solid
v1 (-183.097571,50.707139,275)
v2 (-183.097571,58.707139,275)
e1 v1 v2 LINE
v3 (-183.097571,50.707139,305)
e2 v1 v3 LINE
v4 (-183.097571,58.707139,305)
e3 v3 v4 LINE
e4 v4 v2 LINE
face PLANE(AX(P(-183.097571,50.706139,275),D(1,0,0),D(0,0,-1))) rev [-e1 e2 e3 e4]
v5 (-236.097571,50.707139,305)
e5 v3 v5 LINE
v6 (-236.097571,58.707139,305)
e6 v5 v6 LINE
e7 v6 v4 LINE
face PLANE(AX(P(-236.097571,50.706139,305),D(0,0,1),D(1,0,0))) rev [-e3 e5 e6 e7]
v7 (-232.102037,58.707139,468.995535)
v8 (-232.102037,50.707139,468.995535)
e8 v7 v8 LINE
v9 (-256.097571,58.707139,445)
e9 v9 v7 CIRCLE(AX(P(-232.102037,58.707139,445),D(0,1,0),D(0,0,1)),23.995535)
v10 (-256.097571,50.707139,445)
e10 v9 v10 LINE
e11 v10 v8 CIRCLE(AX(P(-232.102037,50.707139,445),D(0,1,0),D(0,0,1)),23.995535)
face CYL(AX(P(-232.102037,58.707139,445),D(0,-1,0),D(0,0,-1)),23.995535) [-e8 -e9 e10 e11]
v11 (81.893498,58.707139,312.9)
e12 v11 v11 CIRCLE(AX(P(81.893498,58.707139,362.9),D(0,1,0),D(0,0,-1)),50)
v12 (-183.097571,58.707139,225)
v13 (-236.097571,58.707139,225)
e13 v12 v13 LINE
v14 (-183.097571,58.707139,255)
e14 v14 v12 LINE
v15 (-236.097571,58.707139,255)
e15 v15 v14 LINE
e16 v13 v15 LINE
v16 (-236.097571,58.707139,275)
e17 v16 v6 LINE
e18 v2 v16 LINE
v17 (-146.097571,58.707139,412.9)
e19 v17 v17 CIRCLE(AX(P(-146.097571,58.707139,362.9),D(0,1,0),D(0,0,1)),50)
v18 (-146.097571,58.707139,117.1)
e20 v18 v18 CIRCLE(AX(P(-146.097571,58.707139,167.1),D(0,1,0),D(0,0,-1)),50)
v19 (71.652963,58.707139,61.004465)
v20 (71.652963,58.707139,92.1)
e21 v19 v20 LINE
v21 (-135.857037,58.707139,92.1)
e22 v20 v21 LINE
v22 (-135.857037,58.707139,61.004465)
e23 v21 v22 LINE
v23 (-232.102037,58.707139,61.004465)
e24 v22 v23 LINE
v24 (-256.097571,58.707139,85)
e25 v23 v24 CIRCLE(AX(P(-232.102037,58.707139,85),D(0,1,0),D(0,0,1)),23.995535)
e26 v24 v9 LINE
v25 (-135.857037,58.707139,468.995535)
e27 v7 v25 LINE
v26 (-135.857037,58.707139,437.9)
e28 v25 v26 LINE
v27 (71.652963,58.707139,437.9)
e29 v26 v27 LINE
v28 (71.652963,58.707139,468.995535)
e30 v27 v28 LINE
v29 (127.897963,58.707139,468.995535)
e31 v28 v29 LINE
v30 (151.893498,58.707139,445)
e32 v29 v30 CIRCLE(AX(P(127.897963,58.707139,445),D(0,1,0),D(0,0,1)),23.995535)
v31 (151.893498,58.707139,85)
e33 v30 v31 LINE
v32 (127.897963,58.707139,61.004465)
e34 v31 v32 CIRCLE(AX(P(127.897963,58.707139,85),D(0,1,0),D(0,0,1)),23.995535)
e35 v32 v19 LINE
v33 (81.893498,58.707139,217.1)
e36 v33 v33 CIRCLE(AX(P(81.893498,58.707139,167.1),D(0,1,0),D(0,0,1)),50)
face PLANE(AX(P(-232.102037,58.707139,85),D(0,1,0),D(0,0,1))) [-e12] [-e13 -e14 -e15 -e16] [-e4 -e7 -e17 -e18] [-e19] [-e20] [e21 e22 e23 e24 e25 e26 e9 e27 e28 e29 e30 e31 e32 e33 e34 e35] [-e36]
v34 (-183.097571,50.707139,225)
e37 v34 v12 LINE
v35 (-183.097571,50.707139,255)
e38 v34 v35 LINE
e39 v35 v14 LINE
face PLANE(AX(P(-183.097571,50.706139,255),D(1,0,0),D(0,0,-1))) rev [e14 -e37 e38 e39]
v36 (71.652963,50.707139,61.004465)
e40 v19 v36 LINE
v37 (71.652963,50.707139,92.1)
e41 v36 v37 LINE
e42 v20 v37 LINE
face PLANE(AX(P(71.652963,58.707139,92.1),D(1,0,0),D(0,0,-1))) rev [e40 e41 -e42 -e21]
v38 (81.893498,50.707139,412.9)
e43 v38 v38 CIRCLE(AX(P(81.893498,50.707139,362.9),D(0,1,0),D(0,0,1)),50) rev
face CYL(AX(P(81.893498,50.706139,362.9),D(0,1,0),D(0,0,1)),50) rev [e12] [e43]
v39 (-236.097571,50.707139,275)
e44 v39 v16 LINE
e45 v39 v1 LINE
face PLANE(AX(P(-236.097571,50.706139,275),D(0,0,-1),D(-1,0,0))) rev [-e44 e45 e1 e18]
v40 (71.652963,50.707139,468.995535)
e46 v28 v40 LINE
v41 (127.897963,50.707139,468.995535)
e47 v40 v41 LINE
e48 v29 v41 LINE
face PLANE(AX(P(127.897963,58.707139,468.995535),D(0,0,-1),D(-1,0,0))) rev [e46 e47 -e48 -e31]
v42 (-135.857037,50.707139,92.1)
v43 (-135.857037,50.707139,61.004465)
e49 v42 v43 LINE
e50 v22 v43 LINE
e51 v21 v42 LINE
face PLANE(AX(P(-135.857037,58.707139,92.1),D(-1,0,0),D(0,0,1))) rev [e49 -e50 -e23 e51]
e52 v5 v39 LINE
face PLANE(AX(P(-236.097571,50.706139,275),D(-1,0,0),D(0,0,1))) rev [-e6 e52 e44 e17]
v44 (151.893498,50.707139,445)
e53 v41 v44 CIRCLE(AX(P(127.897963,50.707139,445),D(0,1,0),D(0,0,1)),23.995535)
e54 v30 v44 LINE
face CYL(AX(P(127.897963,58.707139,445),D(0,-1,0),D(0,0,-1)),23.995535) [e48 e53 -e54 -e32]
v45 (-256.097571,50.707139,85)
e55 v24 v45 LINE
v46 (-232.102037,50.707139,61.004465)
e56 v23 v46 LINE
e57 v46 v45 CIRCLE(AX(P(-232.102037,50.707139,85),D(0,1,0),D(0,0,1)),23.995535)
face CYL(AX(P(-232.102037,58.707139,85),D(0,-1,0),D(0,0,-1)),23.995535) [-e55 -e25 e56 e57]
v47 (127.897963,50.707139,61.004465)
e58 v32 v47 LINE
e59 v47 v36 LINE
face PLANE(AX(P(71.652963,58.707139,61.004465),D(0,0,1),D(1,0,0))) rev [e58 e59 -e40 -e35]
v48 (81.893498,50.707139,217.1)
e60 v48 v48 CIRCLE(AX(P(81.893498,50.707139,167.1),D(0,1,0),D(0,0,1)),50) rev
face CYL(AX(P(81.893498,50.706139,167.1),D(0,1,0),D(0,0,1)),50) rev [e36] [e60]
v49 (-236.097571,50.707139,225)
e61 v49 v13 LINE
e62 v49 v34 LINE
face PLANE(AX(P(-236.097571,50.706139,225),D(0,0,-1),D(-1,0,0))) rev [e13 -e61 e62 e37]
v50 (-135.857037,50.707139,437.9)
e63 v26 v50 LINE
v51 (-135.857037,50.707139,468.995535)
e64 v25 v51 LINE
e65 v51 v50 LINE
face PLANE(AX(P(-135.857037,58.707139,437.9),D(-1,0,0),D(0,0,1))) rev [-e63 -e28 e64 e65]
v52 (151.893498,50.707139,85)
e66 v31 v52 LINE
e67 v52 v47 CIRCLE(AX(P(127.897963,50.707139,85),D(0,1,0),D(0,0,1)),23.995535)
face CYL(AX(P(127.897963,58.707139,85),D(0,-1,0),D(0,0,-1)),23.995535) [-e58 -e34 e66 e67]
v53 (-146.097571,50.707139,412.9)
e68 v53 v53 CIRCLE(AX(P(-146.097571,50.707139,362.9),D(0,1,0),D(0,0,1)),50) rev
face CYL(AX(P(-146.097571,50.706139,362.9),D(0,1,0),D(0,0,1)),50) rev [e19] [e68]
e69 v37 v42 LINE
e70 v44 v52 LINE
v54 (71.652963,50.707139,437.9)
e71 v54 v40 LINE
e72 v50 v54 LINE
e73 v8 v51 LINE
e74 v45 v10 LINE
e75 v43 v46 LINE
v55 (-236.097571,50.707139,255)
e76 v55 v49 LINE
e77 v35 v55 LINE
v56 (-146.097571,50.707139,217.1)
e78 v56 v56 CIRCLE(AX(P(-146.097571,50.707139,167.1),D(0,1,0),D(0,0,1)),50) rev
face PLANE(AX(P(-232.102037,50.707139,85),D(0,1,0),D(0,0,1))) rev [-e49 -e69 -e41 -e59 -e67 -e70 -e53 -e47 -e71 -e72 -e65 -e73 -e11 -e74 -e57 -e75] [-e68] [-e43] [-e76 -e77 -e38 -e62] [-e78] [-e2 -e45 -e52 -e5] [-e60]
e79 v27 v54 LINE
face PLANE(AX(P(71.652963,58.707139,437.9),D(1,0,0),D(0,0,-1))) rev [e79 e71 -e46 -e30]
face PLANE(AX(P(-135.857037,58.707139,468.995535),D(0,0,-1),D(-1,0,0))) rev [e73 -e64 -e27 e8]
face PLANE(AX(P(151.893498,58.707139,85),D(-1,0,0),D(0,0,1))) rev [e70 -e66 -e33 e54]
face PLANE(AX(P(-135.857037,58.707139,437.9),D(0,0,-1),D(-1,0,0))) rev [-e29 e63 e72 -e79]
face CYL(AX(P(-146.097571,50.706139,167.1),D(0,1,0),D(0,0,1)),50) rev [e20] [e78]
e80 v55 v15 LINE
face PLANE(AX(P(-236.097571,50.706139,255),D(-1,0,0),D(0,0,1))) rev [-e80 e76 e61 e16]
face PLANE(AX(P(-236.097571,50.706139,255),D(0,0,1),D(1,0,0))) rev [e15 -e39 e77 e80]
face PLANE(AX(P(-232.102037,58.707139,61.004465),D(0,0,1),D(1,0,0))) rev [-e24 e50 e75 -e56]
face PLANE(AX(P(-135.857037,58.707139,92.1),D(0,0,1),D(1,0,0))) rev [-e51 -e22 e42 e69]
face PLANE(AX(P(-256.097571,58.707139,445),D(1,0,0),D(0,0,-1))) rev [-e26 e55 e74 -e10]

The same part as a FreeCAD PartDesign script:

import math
import FreeCAD as App
import Part
import Sketcher

doc = App.newDocument("Part")
body = doc.addObject("PartDesign::Body", "Body")

# Sketch on XZ plane
sketch1 = body.newObject("Sketcher::SketchObject", "Sketch")
sketch1.AttachmentSupport = (doc.getObject("XZ_Plane"), [""])
sketch1.MapMode = "FlatFace"
sketch1.AttachmentOffset = App.Placement(App.Vector(0, 0, -54.707139), App.Rotation())
sketch1.addGeometry(Part.LineSegment(App.Vector(72, 92, 0), App.Vector(-136, 92, 0)), False)
sketch1.addGeometry(Part.LineSegment(App.Vector(-136, 92, 0), App.Vector(-136, 61, 0)), False)
sketch1.addGeometry(Part.LineSegment(App.Vector(-136, 61, 0), App.Vector(-232, 61, 0)), False)
sketch1.addGeometry(Part.ArcOfCircle(Part.Circle(App.Vector(-232, 85, 0), App.Vector(0, 0, 1), 24), math.radians(180), math.radians(270)), False)
sketch1.addGeometry(Part.LineSegment(App.Vector(-256, 85, 0), App.Vector(-256, 445, 0)), False)
sketch1.addGeometry(Part.ArcOfCircle(Part.Circle(App.Vector(-232, 445, 0), App.Vector(0, 0, 1), 24), math.radians(90), math.radians(180)), False)
sketch1.addGeometry(Part.LineSegment(App.Vector(-232, 469, 0), App.Vector(-136, 469, 0)), False)
sketch1.addGeometry(Part.LineSegment(App.Vector(-136, 469, 0), App.Vector(-136, 438, 0)), False)
sketch1.addGeometry(Part.LineSegment(App.Vector(-136, 438, 0), App.Vector(72, 438, 0)), False)
sketch1.addGeometry(Part.LineSegment(App.Vector(72, 438, 0), App.Vector(72, 469, 0)), False)
sketch1.addGeometry(Part.LineSegment(App.Vector(72, 469, 0), App.Vector(128, 469, 0)), False)
sketch1.addGeometry(Part.ArcOfCircle(Part.Circle(App.Vector(128, 445, 0), App.Vector(0, 0, 1), 24), math.radians(0), math.radians(90)), False)
sketch1.addGeometry(Part.LineSegment(App.Vector(152, 445, 0), App.Vector(152, 85, 0)), False)
sketch1.addGeometry(Part.ArcOfCircle(Part.Circle(App.Vector(128, 85, 0), App.Vector(0, 0, 1), 24), math.radians(-90), math.radians(0)), False)
sketch1.addGeometry(Part.LineSegment(App.Vector(128, 61, 0), App.Vector(72, 61, 0)), False)
sketch1.addGeometry(Part.LineSegment(App.Vector(72, 61, 0), App.Vector(72, 92, 0)), False)
sketch1.addConstraint(Sketcher.Constraint("Coincident", 0, 2, 1, 1))
sketch1.addConstraint(Sketcher.Constraint("Coincident", 1, 2, 2, 1))
sketch1.addConstraint(Sketcher.Constraint("Tangent", 2, 2, 3, 2))
sketch1.addConstraint(Sketcher.Constraint("Tangent", 3, 1, 4, 1))
sketch1.addConstraint(Sketcher.Constraint("Tangent", 4, 2, 5, 2))
sketch1.addConstraint(Sketcher.Constraint("Tangent", 5, 1, 6, 1))
sketch1.addConstraint(Sketcher.Constraint("Coincident", 6, 2, 7, 1))
sketch1.addConstraint(Sketcher.Constraint("Coincident", 7, 2, 8, 1))
sketch1.addConstraint(Sketcher.Constraint("Coincident", 8, 2, 9, 1))
sketch1.addConstraint(Sketcher.Constraint("Coincident", 9, 2, 10, 1))
sketch1.addConstraint(Sketcher.Constraint("Tangent", 10, 2, 11, 2))
sketch1.addConstraint(Sketcher.Constraint("Tangent", 11, 1, 12, 1))
sketch1.addConstraint(Sketcher.Constraint("Tangent", 12, 2, 13, 2))
sketch1.addConstraint(Sketcher.Constraint("Tangent", 13, 1, 14, 1))
sketch1.addConstraint(Sketcher.Constraint("Coincident", 14, 2, 15, 1))
sketch1.addConstraint(Sketcher.Constraint("Coincident", 15, 2, 0, 1))
sketch1.addConstraint(Sketcher.Constraint("Horizontal", 0))
sketch1.addConstraint(Sketcher.Constraint("Vertical", 1))
sketch1.addConstraint(Sketcher.Constraint("Horizontal", 2))
sketch1.addConstraint(Sketcher.Constraint("Vertical", 4))
sketch1.addConstraint(Sketcher.Constraint("Horizontal", 6))
sketch1.addConstraint(Sketcher.Constraint("Vertical", 7))
sketch1.addConstraint(Sketcher.Constraint("Horizontal", 8))
sketch1.addConstraint(Sketcher.Constraint("Vertical", 9))
sketch1.addConstraint(Sketcher.Constraint("Horizontal", 10))
sketch1.addConstraint(Sketcher.Constraint("Vertical", 12))
sketch1.addConstraint(Sketcher.Constraint("Horizontal", 14))
sketch1.addConstraint(Sketcher.Constraint("Vertical", 15))
sketch1.addConstraint(Sketcher.Constraint("Equal", 3, 5))
sketch1.addConstraint(Sketcher.Constraint("Equal", 5, 11))
sketch1.addConstraint(Sketcher.Constraint("Equal", 11, 13))
sketch1.addConstraint(Sketcher.Constraint("Horizontal", 5, 3, 11, 3))
sketch1.addConstraint(Sketcher.Constraint("Horizontal", 3, 3, 13, 3))
sketch1.addConstraint(Sketcher.Constraint("Vertical", 1, 2, 6, 2))
sketch1.addConstraint(Sketcher.Constraint("Vertical", 9, 2, 14, 2))
sketch1.addConstraint(Sketcher.Constraint("Equal", 1, 7))
sketch1.addConstraint(Sketcher.Constraint("DistanceY", 4, 1, 4, 2, 360.0))
sketch1.addConstraint(Sketcher.Constraint("DistanceY", -1, 1, 3, 3, 85.0))
sketch1.addConstraint(Sketcher.Constraint("DistanceX", 5, 3, 11, 3, 360.0))
sketch1.addConstraint(Sketcher.Constraint("DistanceX", 0, 2, 0, 1, 207.51))
sketch1.addConstraint(Sketcher.Constraint("DistanceY", -1, 1, 0, 2, 92.1))
sketch1.addConstraint(Sketcher.Constraint("DistanceX", 2, 2, 2, 1, 96.245))
sketch1.addConstraint(Sketcher.Constraint("Radius", 3, 23.995535))
sketch1.addConstraint(Sketcher.Constraint("DistanceX", 3, 1, -1, 1, 256.097571))
pad1 = body.newObject("PartDesign::Pad", "Pad")
pad1.Profile = sketch1
pad1.Length = 8
pad1.Midplane = True

# Sketch on XZ plane
sketch2 = body.newObject("Sketcher::SketchObject", "Sketch001")
sketch2.AttachmentSupport = (doc.getObject("XZ_Plane"), [""])
sketch2.MapMode = "FlatFace"
sketch2.AttachmentOffset = App.Placement(App.Vector(0, 0, -58.707139), App.Rotation())
sketch2.addGeometry(Part.Circle(App.Vector(-146, 167, 0), App.Vector(0, 0, 1), 50), False)
sketch2.addConstraint(Sketcher.Constraint("Diameter", 0, 100.0))
sketch2.addConstraint(Sketcher.Constraint("DistanceY", -1, 1, 0, 3, 167.1))
sketch2.addConstraint(Sketcher.Constraint("DistanceX", 0, 3, -1, 1, 146.097571))
pocket1 = body.newObject("PartDesign::Pocket", "Pocket")
pocket1.Profile = sketch2
pocket1.Type = "UpToFirst"
pocket1.Reversed = True

# Sketch on XZ plane
sketch3 = body.newObject("Sketcher::SketchObject", "Sketch002")
sketch3.AttachmentSupport = (doc.getObject("XZ_Plane"), [""])
sketch3.MapMode = "FlatFace"
sketch3.AttachmentOffset = App.Placement(App.Vector(0, 0, -58.707139), App.Rotation())
sketch3.addGeometry(Part.Circle(App.Vector(82, 167, 0), App.Vector(0, 0, 1), 50), False)
sketch3.addConstraint(Sketcher.Constraint("Diameter", 0, 100.0))
sketch3.addConstraint(Sketcher.Constraint("DistanceY", -1, 1, 0, 3, 167.1))
sketch3.addConstraint(Sketcher.Constraint("DistanceX", -1, 1, 0, 3, 81.893498))
pocket2 = body.newObject("PartDesign::Pocket", "Pocket001")
pocket2.Profile = sketch3
pocket2.Type = "UpToFirst"
pocket2.Reversed = True

# Sketch on XZ plane
sketch4 = body.newObject("Sketcher::SketchObject", "Sketch003")
sketch4.AttachmentSupport = (doc.getObject("XZ_Plane"), [""])
sketch4.MapMode = "FlatFace"
sketch4.AttachmentOffset = App.Placement(App.Vector(0, 0, -58.707139), App.Rotation())
sketch4.addGeometry(Part.Circle(App.Vector(82, 363, 0), App.Vector(0, 0, 1), 50), False)
sketch4.addConstraint(Sketcher.Constraint("Diameter", 0, 100.0))
sketch4.addConstraint(Sketcher.Constraint("DistanceY", -1, 1, 0, 3, 362.9))
sketch4.addConstraint(Sketcher.Constraint("DistanceX", -1, 1, 0, 3, 81.893498))
pocket3 = body.newObject("PartDesign::Pocket", "Pocket002")
pocket3.Profile = sketch4
pocket3.Type = "UpToFirst"
pocket3.Reversed = True

# Sketch on XZ plane
sketch5 = body.newObject("Sketcher::SketchObject", "Sketch004")
sketch5.AttachmentSupport = (doc.getObject("XZ_Plane"), [""])
sketch5.MapMode = "FlatFace"
sketch5.AttachmentOffset = App.Placement(App.Vector(0, 0, -58.707139), App.Rotation())
sketch5.addGeometry(Part.Circle(App.Vector(-146, 363, 0), App.Vector(0, 0, 1), 50), False)
sketch5.addConstraint(Sketcher.Constraint("Diameter", 0, 100.0))
sketch5.addConstraint(Sketcher.Constraint("DistanceY", -1, 1, 0, 3, 362.9))
sketch5.addConstraint(Sketcher.Constraint("DistanceX", 0, 3, -1, 1, 146.097571))
pocket4 = body.newObject("PartDesign::Pocket", "Pocket003")
pocket4.Profile = sketch5
pocket4.Type = "UpToFirst"
pocket4.Reversed = True

# Sketch on XZ plane
sketch6 = body.newObject("Sketcher::SketchObject", "Sketch005")
sketch6.AttachmentSupport = (doc.getObject("XZ_Plane"), [""])
sketch6.MapMode = "FlatFace"
sketch6.AttachmentOffset = App.Placement(App.Vector(0, 0, -58.707139), App.Rotation())
sketch6.addGeometry(Part.LineSegment(App.Vector(-236, 275, 0), App.Vector(-236, 305, 0)), False)
sketch6.addGeometry(Part.LineSegment(App.Vector(-236, 305, 0), App.Vector(-183, 305, 0)), False)
sketch6.addGeometry(Part.LineSegment(App.Vector(-183, 305, 0), App.Vector(-183, 275, 0)), False)
sketch6.addGeometry(Part.LineSegment(App.Vector(-183, 275, 0), App.Vector(-236, 275, 0)), False)
sketch6.addConstraint(Sketcher.Constraint("Coincident", 0, 2, 1, 1))
sketch6.addConstraint(Sketcher.Constraint("Coincident", 1, 2, 2, 1))
sketch6.addConstraint(Sketcher.Constraint("Coincident", 2, 2, 3, 1))
sketch6.addConstraint(Sketcher.Constraint("Coincident", 3, 2, 0, 1))
sketch6.addConstraint(Sketcher.Constraint("Vertical", 0))
sketch6.addConstraint(Sketcher.Constraint("Horizontal", 1))
sketch6.addConstraint(Sketcher.Constraint("Vertical", 2))
sketch6.addConstraint(Sketcher.Constraint("Horizontal", 3))
sketch6.addConstraint(Sketcher.Constraint("DistanceX", 1, 1, 1, 2, 53.0))
sketch6.addConstraint(Sketcher.Constraint("DistanceY", 0, 1, 0, 2, 30.0))
sketch6.addConstraint(Sketcher.Constraint("DistanceY", -1, 1, 0, 2, 305.0))
sketch6.addConstraint(Sketcher.Constraint("DistanceX", 0, 2, -1, 1, 236.097571))
pocket5 = body.newObject("PartDesign::Pocket", "Pocket004")
pocket5.Profile = sketch6
pocket5.Type = "UpToFirst"
pocket5.Reversed = True

# Sketch on XZ plane
sketch7 = body.newObject("Sketcher::SketchObject", "Sketch006")
sketch7.AttachmentSupport = (doc.getObject("XZ_Plane"), [""])
sketch7.MapMode = "FlatFace"
sketch7.AttachmentOffset = App.Placement(App.Vector(0, 0, -58.707139), App.Rotation())
sketch7.addGeometry(Part.LineSegment(App.Vector(-236, 225, 0), App.Vector(-236, 255, 0)), False)
sketch7.addGeometry(Part.LineSegment(App.Vector(-236, 255, 0), App.Vector(-183, 255, 0)), False)
sketch7.addGeometry(Part.LineSegment(App.Vector(-183, 255, 0), App.Vector(-183, 225, 0)), False)
sketch7.addGeometry(Part.LineSegment(App.Vector(-183, 225, 0), App.Vector(-236, 225, 0)), False)
sketch7.addConstraint(Sketcher.Constraint("Coincident", 0, 2, 1, 1))
sketch7.addConstraint(Sketcher.Constraint("Coincident", 1, 2, 2, 1))
sketch7.addConstraint(Sketcher.Constraint("Coincident", 2, 2, 3, 1))
sketch7.addConstraint(Sketcher.Constraint("Coincident", 3, 2, 0, 1))
sketch7.addConstraint(Sketcher.Constraint("Vertical", 0))
sketch7.addConstraint(Sketcher.Constraint("Horizontal", 1))
sketch7.addConstraint(Sketcher.Constraint("Vertical", 2))
sketch7.addConstraint(Sketcher.Constraint("Horizontal", 3))
sketch7.addConstraint(Sketcher.Constraint("DistanceX", 1, 1, 1, 2, 53.0))
sketch7.addConstraint(Sketcher.Constraint("DistanceY", 0, 1, 0, 2, 30.0))
sketch7.addConstraint(Sketcher.Constraint("DistanceY", -1, 1, 0, 2, 255.0))
sketch7.addConstraint(Sketcher.Constraint("DistanceX", 0, 2, -1, 1, 236.097571))
pocket6 = body.newObject("PartDesign::Pocket", "Pocket005")
pocket6.Profile = sketch7
pocket6.Type = "UpToFirst"
pocket6.Reversed = True

doc.recompute()
